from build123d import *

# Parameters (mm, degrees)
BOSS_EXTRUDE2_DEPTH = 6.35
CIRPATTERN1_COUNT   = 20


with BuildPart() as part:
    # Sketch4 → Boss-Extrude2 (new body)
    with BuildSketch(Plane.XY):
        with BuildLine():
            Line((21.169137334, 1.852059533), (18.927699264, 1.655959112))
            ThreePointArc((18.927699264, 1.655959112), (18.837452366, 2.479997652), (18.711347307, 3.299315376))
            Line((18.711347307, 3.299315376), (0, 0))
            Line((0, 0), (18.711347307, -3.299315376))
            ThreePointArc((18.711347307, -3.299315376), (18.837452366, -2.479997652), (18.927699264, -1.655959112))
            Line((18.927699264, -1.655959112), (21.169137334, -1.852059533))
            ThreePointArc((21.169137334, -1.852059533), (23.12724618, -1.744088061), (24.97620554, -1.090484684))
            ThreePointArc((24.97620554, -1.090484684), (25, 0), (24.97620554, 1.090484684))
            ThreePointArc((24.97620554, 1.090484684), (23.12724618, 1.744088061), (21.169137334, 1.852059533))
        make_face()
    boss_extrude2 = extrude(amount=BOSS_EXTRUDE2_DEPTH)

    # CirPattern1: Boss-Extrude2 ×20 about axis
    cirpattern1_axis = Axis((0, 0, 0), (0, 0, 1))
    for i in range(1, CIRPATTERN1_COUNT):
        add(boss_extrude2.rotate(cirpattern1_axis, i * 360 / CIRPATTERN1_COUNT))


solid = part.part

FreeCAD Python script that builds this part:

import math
import FreeCAD as App
import Part
import Sketcher

V = App.Vector
Q = App.Units.Quantity

doc = App.newDocument("Part")
body = doc.addObject("PartDesign::Body", "Body")

# Sketch on XY plane
sketch1 = body.newObject("Sketcher::SketchObject", "Sketch")
sketch1.AttachmentSupport = (doc.getObject("XY_Plane"), [""])
sketch1.MapMode = "FlatFace"
sketch1.addGeometry(Part.LineSegment(V(21.2, 1.9, 0), V(18.9, 1.7, 0)), False)
sketch1.addGeometry(Part.ArcOfCircle(Part.Circle(V(0, 0, 0), V(0, 0, 1), 19), math.radians(5), math.radians(10)), False)
sketch1.addGeometry(Part.LineSegment(V(18.7, 3.3, 0), V(0, 0, 0)), False)
sketch1.addGeometry(Part.LineSegment(V(0, 0, 0), V(18.7, -3.3, 0)), False)
sketch1.addGeometry(Part.ArcOfCircle(Part.Circle(V(0, 0, 0), V(0, 0, 1), 19), math.radians(-10), math.radians(-5)), False)
sketch1.addGeometry(Part.LineSegment(V(18.9, -1.7, 0), V(21.2, -1.9, 0)), False)
sketch1.addGeometry(Part.ArcOfCircle(Part.Circle(V(21.8, 5, 0), V(0, 0, 1), 6.9), math.radians(-95), math.radians(-62)), False)
sketch1.addGeometry(Part.ArcOfCircle(Part.Circle(V(0, 0, 0), V(0, 0, 1), 25), math.radians(-2.5), math.radians(2.5)), False)
sketch1.addGeometry(Part.ArcOfCircle(Part.Circle(V(21.8, -5, 0), V(0, 0, 1), 6.9), math.radians(62), math.radians(95)), False)
sketch1.addConstraint(Sketcher.Constraint("Coincident", 0, 2, 1, 1))
sketch1.addConstraint(Sketcher.Constraint("Coincident", 1, 2, 2, 1))
sketch1.addConstraint(Sketcher.Constraint("Coincident", 2, 2, 3, 1))
sketch1.addConstraint(Sketcher.Constraint("Coincident", 3, 2, 4, 1))
sketch1.addConstraint(Sketcher.Constraint("Coincident", 4, 2, 5, 1))
sketch1.addConstraint(Sketcher.Constraint("Tangent", 5, 2, 6, 1))
sketch1.addConstraint(Sketcher.Constraint("Coincident", 6, 2, 7, 1))
sketch1.addConstraint(Sketcher.Constraint("Coincident", 7, 2, 8, 1))
sketch1.addConstraint(Sketcher.Constraint("Tangent", 8, 2, 0, 1))
sketch1.addConstraint(Sketcher.Constraint("Coincident", 1, 3, -1, 1))
sketch1.addConstraint(Sketcher.Constraint("Coincident", 4, 3, -1, 1))
sketch1.addConstraint(Sketcher.Constraint("Coincident", 7, 3, -1, 1))
sketch1.addConstraint(Sketcher.Constraint("Coincident", 2, 2, -1, 1))
sketch1.addConstraint(Sketcher.Constraint("Equal", 1, 4))
sketch1.addConstraint(Sketcher.Constraint("Equal", 6, 8))
sketch1.addConstraint(Sketcher.Constraint("Symmetric", 6, 3, 8, 3, -1))
sketch1.addConstraint(Sketcher.Constraint("Vertical", 1, 2, 3, 2))
sketch1.addConstraint(Sketcher.Constraint("Vertical", 0, 2, 4, 2))
sketch1.addConstraint(Sketcher.Constraint("Radius", 1, 19.0))
sketch1.addConstraint(Sketcher.Constraint("Radius", 7, 25.0))
sketch1.addConstraint(Sketcher.Constraint("Angle", 0, Q("-175 deg")))
sketch1.addConstraint(Sketcher.Constraint("Angle", 2, Q("-170 deg")))
sketch1.addConstraint(Sketcher.Constraint("Distance", 0, 2.25))
sketch1.addConstraint(Sketcher.Constraint("Radius", 6, 6.911498))
sketch1.addConstraint(Sketcher.Constraint("DistanceX", -1, 1, 0, 2, 18.927699))
pad1 = body.newObject("PartDesign::Pad", "Pad")
pad1.Profile = sketch1
pad1.Length = 6.35
doc.recompute()

polarpattern = body.newObject("PartDesign::PolarPattern", "PolarPattern")
polarpattern.Originals = [pad1]
polarpattern.Axis = (doc.getObject("Z_Axis"), [""])
polarpattern.Angle = 360
polarpattern.Occurrences = 20
body.Tip = polarpattern

doc.recompute()
